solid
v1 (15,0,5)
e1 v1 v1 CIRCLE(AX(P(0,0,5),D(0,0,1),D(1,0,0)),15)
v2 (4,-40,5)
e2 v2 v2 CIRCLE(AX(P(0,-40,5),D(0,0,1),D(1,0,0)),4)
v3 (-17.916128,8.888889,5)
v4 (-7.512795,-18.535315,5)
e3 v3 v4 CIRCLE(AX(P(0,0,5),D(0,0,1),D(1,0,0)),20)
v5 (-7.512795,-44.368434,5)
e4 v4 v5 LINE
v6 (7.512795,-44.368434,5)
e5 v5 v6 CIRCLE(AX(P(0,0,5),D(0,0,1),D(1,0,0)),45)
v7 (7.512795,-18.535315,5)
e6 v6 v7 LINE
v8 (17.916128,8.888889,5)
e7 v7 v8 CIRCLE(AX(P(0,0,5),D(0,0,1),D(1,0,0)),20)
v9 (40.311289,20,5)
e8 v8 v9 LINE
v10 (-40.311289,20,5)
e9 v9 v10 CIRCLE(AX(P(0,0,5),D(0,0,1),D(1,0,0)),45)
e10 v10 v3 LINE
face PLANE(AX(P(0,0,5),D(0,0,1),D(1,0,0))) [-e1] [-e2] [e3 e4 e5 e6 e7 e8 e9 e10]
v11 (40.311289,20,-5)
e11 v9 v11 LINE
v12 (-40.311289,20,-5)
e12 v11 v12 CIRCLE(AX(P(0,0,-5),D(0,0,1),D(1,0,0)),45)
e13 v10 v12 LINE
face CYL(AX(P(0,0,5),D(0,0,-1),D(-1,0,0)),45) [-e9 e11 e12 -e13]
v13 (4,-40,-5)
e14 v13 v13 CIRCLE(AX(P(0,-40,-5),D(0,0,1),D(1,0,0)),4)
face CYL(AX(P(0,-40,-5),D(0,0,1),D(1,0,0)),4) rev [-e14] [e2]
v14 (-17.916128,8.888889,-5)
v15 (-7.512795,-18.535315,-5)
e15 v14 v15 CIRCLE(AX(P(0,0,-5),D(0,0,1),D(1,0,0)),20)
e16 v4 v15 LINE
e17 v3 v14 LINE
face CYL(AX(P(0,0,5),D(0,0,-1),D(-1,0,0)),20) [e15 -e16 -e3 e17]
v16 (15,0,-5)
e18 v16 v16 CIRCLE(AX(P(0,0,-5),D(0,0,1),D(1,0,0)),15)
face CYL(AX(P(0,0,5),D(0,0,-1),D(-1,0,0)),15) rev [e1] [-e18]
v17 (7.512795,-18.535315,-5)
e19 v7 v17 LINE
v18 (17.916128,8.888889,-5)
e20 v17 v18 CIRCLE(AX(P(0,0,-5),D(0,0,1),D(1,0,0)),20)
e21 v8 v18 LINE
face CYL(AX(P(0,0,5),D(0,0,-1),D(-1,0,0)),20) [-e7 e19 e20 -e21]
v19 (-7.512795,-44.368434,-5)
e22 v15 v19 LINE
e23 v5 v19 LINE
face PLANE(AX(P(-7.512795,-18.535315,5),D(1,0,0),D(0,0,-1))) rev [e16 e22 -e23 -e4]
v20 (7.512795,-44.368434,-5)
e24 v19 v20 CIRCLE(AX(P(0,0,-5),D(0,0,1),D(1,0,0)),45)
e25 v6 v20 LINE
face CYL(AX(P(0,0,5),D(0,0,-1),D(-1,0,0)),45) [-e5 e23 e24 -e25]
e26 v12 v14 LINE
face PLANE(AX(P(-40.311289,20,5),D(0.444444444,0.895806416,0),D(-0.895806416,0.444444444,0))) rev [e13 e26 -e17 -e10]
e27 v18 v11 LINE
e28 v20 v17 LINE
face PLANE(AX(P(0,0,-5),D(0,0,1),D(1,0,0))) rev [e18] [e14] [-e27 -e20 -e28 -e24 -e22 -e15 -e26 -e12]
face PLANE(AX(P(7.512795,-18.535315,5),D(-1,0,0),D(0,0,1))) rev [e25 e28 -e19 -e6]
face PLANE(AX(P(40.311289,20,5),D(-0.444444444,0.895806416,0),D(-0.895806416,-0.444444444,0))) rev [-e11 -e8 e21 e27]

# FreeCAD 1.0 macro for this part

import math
import FreeCAD as App
import Part
import Sketcher

V = App.Vector
Q = App.Units.Quantity

doc = App.newDocument("Part")
body = doc.addObject("PartDesign::Body", "Body")

# Sketch on XY plane
sketch1 = body.newObject("Sketcher::SketchObject", "Sketch")
sketch1.AttachmentSupport = (doc.getObject("XY_Plane"), [""])
sketch1.MapMode = "FlatFace"
sketch1.addGeometry(Part.LineSegment(V(-40, 20, 0), V(-18, 9, 0)), False)
sketch1.addGeometry(Part.ArcOfCircle(Part.Circle(V(0, 0, 0), V(0, 0, 1), 20), math.radians(154), math.radians(248)), False)
sketch1.addGeometry(Part.LineSegment(V(-8, -19, 0), V(-8, -44, 0)), False)
sketch1.addGeometry(Part.ArcOfCircle(Part.Circle(V(0, 0, 0), V(0, 0, 1), 45), math.radians(-99.61), math.radians(-80.39)), False)
sketch1.addGeometry(Part.LineSegment(V(8, -44, 0), V(8, -19, 0)), False)
sketch1.addGeometry(Part.ArcOfCircle(Part.Circle(V(0, 0, 0), V(0, 0, 1), 20), math.radians(-68), math.radians(26)), False)
sketch1.addGeometry(Part.LineSegment(V(18, 9, 0), V(40, 20, 0)), False)
sketch1.addGeometry(Part.ArcOfCircle(Part.Circle(V(0, 0, 0), V(0, 0, 1), 45), math.radians(26), math.radians(154)), False)
sketch1.addGeometry(Part.Circle(V(0, 0, 0), V(0, 0, 1), 15), False)
sketch1.addConstraint(Sketcher.Constraint("Coincident", 0, 2, 1, 1))
sketch1.addConstraint(Sketcher.Constraint("Coincident", 1, 2, 2, 1))
sketch1.addConstraint(Sketcher.Constraint("Coincident", 2, 2, 3, 1))
sketch1.addConstraint(Sketcher.Constraint("Coincident", 3, 2, 4, 1))
sketch1.addConstraint(Sketcher.Constraint("Coincident", 4, 2, 5, 1))
sketch1.addConstraint(Sketcher.Constraint("Coincident", 5, 2, 6, 1))
sketch1.addConstraint(Sketcher.Constraint("Coincident", 6, 2, 7, 1))
sketch1.addConstraint(Sketcher.Constraint("Coincident", 7, 2, 0, 1))
sketch1.addConstraint(Sketcher.Constraint("Vertical", 2))
sketch1.addConstraint(Sketcher.Constraint("Vertical", 4))
sketch1.addConstraint(Sketcher.Constraint("Coincident", 1, 3, -1, 1))
sketch1.addConstraint(Sketcher.Constraint("Coincident", 3, 3, -1, 1))
sketch1.addConstraint(Sketcher.Constraint("Coincident", 5, 3, -1, 1))
sketch1.addConstraint(Sketcher.Constraint("Coincident", 7, 3, -1, 1))
sketch1.addConstraint(Sketcher.Constraint("Coincident", 8, 3, -1, 1))
sketch1.addConstraint(Sketcher.Constraint("Equal", 1, 5))
sketch1.addConstraint(Sketcher.Constraint("Equal", 3, 7))
sketch1.addConstraint(Sketcher.Constraint("Horizontal", 2, 2, 3, 2))
sketch1.addConstraint(Sketcher.Constraint("Horizontal", 0, 2, 5, 2))
sketch1.addConstraint(Sketcher.Constraint("Horizontal", 6, 2, 7, 2))
sketch1.addConstraint(Sketcher.Constraint("Diameter", 8, Q("30 mm")))
sketch1.addConstraint(Sketcher.Constraint("Radius", 1, Q("20 mm")))
sketch1.addConstraint(Sketcher.Constraint("Radius", 3, Q("45 mm")))
sketch1.addConstraint(Sketcher.Constraint("DistanceY", -1, 1, 6, 2, Q("20 mm")))
sketch1.addConstraint(Sketcher.Constraint("DistanceY", 2, 2, 2, 1, Q("25.833118 mm")))
sketch1.addConstraint(Sketcher.Constraint("DistanceX", 0, 2, -1, 1, Q("17.916128 mm")))
pad1 = body.newObject("PartDesign::Pad", "Pad")
pad1.Profile = sketch1
pad1.Length = 10
pad1.Midplane = True

# Sketch on XY plane
sketch2 = body.newObject("Sketcher::SketchObject", "Sketch001")
sketch2.AttachmentSupport = (doc.getObject("XY_Plane"), [""])
sketch2.MapMode = "FlatFace"
sketch2.AttachmentOffset = App.Placement(V(0, 0, 5), App.Rotation())
sketch2.addGeometry(Part.Circle(V(0, -40, 0), V(0, 0, 1), 4), False)
sketch2.addConstraint(Sketcher.Constraint("PointOnObject", 0, 3, -2))
sketch2.addConstraint(Sketcher.Constraint("Diameter", 0, Q("8 mm")))
sketch2.addConstraint(Sketcher.Constraint("DistanceY", 0, 3, -1, 1, Q("40 mm")))
pocket1 = body.newObject("PartDesign::Pocket", "Pocket")
pocket1.Profile = sketch2
pocket1.Type = "ThroughAll"

doc.recompute()
